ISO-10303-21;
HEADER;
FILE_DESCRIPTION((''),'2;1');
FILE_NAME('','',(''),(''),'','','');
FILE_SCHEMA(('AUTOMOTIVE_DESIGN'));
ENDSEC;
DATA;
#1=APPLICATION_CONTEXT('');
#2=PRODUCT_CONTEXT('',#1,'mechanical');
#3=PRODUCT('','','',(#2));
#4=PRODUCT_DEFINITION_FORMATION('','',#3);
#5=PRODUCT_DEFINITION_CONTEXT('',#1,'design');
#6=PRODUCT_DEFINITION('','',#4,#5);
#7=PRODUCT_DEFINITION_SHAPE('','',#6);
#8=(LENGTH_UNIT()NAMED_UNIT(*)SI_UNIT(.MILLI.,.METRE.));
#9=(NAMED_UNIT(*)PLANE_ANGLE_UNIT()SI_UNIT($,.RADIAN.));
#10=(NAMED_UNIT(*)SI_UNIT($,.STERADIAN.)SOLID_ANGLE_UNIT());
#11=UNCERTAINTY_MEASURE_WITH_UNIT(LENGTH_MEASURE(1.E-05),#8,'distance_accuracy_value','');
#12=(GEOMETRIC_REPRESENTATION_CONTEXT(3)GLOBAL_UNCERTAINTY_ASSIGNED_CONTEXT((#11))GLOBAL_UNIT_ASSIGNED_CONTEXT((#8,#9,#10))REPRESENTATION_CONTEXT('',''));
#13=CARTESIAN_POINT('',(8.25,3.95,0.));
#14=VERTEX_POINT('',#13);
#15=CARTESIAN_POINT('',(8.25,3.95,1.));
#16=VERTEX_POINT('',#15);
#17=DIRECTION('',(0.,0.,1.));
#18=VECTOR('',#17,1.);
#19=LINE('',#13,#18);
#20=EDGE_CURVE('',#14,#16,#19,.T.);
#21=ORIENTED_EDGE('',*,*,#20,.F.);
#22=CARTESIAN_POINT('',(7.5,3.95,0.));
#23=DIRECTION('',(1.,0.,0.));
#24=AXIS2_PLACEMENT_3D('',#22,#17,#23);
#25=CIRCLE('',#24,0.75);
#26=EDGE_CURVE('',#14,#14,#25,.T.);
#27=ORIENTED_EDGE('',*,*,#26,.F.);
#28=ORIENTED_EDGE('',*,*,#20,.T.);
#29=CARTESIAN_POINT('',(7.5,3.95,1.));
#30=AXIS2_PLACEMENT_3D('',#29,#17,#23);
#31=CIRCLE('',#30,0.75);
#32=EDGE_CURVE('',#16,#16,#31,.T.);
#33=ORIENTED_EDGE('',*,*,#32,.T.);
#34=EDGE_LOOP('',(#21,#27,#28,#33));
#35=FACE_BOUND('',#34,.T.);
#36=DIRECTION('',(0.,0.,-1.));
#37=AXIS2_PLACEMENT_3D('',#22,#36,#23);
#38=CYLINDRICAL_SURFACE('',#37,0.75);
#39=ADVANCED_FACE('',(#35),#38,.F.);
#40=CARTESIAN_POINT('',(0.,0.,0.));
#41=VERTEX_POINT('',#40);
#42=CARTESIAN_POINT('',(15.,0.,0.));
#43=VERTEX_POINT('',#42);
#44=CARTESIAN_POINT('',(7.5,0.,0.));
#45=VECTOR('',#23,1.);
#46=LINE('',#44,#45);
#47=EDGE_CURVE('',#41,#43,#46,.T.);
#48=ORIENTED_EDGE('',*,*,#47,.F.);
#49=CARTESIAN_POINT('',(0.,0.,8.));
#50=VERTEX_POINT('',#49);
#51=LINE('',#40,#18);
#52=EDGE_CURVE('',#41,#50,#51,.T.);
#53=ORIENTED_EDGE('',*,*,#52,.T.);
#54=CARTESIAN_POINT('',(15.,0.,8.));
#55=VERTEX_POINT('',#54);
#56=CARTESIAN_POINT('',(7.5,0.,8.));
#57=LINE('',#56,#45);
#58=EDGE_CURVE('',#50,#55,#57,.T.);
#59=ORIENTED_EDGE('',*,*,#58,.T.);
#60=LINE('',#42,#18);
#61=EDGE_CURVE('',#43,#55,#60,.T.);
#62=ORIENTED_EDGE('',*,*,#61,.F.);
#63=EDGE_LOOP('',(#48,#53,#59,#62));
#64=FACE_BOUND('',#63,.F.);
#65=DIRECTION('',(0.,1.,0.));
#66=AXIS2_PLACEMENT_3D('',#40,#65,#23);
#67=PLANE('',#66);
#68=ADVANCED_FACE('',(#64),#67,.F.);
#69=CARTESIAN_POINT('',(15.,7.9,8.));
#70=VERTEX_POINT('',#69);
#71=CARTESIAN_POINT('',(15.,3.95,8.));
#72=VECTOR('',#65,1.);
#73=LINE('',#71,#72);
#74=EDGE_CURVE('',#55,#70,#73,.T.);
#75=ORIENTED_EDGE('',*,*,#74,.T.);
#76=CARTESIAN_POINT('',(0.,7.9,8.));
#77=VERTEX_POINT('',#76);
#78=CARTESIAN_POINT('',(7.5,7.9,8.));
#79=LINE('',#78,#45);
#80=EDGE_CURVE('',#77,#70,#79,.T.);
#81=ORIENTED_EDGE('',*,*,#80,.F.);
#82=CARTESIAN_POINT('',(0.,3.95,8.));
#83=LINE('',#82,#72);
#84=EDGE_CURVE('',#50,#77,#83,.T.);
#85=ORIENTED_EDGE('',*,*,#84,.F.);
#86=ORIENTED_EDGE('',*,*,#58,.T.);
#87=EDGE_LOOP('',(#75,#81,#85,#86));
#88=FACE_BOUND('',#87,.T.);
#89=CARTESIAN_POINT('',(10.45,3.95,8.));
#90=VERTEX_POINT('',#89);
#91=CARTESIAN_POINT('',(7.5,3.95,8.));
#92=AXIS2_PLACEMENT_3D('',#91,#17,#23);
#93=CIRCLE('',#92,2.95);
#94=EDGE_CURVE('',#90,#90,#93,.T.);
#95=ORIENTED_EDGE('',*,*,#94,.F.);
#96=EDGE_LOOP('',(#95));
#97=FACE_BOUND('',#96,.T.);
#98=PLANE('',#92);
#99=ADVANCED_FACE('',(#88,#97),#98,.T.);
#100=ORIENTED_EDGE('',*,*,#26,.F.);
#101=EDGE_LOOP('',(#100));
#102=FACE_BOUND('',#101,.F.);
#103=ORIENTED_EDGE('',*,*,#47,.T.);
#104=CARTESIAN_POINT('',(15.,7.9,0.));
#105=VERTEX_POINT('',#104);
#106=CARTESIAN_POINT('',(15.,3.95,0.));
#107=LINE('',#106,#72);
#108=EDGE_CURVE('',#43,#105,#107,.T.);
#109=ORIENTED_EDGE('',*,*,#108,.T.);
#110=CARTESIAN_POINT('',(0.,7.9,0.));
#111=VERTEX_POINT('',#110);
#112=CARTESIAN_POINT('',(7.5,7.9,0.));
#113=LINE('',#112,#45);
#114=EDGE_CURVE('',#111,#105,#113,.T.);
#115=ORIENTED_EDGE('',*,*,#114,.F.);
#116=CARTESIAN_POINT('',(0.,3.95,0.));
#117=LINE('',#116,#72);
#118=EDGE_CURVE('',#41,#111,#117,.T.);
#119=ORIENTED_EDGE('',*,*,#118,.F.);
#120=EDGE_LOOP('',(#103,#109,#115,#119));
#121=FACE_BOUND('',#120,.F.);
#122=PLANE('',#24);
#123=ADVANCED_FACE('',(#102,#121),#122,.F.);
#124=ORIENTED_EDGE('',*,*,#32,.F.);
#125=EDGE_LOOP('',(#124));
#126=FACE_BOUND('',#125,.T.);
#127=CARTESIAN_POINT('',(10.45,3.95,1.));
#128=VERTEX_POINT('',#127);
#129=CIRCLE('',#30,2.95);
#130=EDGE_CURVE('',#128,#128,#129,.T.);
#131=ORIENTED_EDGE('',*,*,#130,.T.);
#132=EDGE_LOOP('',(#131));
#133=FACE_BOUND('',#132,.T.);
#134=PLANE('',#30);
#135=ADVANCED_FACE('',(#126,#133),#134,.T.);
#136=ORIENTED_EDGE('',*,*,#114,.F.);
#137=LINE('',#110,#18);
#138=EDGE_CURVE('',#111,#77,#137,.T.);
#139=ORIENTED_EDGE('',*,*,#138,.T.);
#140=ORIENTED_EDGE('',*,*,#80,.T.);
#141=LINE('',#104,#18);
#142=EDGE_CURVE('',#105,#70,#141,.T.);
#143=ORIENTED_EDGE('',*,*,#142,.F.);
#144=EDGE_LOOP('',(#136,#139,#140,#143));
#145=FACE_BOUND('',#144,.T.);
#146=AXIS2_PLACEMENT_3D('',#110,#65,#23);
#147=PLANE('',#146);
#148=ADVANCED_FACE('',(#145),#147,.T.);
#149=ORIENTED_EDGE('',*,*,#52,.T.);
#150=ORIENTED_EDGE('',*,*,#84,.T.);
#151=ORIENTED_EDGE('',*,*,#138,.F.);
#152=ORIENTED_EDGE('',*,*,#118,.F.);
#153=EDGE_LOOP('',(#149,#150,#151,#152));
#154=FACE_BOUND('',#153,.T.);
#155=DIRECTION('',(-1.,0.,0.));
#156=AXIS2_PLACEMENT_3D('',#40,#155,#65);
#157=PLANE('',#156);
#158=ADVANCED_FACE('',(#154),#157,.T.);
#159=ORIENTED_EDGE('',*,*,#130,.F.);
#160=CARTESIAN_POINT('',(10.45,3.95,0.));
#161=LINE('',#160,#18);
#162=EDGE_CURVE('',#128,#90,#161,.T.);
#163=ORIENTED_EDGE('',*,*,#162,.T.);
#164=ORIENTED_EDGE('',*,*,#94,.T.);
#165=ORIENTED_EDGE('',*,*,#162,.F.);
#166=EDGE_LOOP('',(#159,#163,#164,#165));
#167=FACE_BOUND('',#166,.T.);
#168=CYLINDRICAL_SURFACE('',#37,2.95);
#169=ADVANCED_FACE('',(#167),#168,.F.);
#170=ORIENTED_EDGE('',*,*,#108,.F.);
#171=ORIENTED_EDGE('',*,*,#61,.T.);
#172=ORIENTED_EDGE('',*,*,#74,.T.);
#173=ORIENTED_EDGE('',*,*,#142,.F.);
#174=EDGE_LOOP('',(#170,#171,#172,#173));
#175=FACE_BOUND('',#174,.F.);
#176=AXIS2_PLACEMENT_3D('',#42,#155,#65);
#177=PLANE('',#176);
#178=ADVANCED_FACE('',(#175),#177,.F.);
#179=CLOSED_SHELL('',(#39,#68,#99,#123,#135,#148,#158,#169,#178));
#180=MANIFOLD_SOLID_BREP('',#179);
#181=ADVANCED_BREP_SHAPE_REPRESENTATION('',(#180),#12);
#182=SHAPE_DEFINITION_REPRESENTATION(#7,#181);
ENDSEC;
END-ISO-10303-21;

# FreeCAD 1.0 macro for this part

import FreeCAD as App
import Part
import Sketcher


def add_polygon(sketch, points):
    """Adds a closed chain of lines whose ends are joined by coincident constraints."""
    first, n = sketch.GeometryCount, len(points)
    for a, b in zip(points, points[1:] + points[:1]):
        sketch.addGeometry(Part.LineSegment(App.Vector(*a, 0), App.Vector(*b, 0)), False)
    for i in range(n):
        sketch.addConstraint(Sketcher.Constraint("Coincident", first + i, 2, first + (i + 1) % n, 1))

doc = App.newDocument("Part")
params = doc.addObject("Spreadsheet::Sheet", "Params")
for row, (alias, value) in enumerate([
    ("sketch1_diameter", "5.9 mm"),
    ("sketch1_width", "15 mm"),
    ("sketch1_height", "7.9 mm"),
    ("pad1_length", "8 mm"),
    ("sketch2_diameter", "5.9 mm"),
    ("sketch2_diameter2", "1.5 mm"),
    ("pad2_length", "1 mm"),
], start=1):
    params.set(f"A{row}", alias)
    params.set(f"B{row}", "=" + value)
    params.setAlias(f"B{row}", alias)

body = doc.addObject("PartDesign::Body", "Body")

# Sketch on XY plane
sketch1 = doc.addObject("Sketcher::SketchObject", "Sketch")
body.addObject(sketch1)
sketch1.AttachmentSupport = (doc.XY_Plane, [""])
sketch1.MapMode = "FlatFace"
add_polygon(sketch1, [(0, 7.9), (0, 0), (15, 0), (15, 7.9)])  # lines 0-3
sketch1.addGeometry(Part.Circle(App.Vector(7.5, 4, 0), App.Vector(0, 0, 1), 3), False)  # 4
sketch1.addConstraint(Sketcher.Constraint("Vertical", 0))
sketch1.addConstraint(Sketcher.Constraint("Horizontal", 1))
sketch1.addConstraint(Sketcher.Constraint("Vertical", 2))
sketch1.addConstraint(Sketcher.Constraint("Horizontal", 3))
sketch1.addConstraint(Sketcher.Constraint("Coincident", 0, 2, -1, 1))
sketch1.addConstraint(Sketcher.Constraint("Diameter", 4, 5.9))
sketch1.addConstraint(Sketcher.Constraint("DistanceX", 1, 1, 1, 2, 15.0))
sketch1.addConstraint(Sketcher.Constraint("DistanceY", 0, 2, 0, 1, 7.9))
sketch1.addConstraint(Sketcher.Constraint("DistanceX", -1, 1, 4, 3, 7.5))
sketch1.addConstraint(Sketcher.Constraint("DistanceY", -1, 1, 4, 3, 3.95))
sketch1.setExpression("Constraints[9]", "Params.sketch1_diameter")
sketch1.setExpression("Constraints[10]", "Params.sketch1_width")
sketch1.setExpression("Constraints[11]", "Params.sketch1_height")
pad1 = doc.addObject("PartDesign::Pad", "Pad")
body.addObject(pad1)
pad1.Profile = sketch1
pad1.setExpression("Length", "Params.pad1_length")

# Sketch on XY plane
sketch2 = doc.addObject("Sketcher::SketchObject", "Sketch001")
body.addObject(sketch2)
sketch2.AttachmentSupport = (doc.XY_Plane, [""])
sketch2.MapMode = "FlatFace"
sketch2.addGeometry(Part.Circle(App.Vector(7.5, 4, 0), App.Vector(0, 0, 1), 3), False)
sketch2.addGeometry(Part.Circle(App.Vector(7.5, 4, 0), App.Vector(0, 0, 1), 0.8), False)
sketch2.addConstraint(Sketcher.Constraint("Coincident", 1, 3, 0, 3))
sketch2.addConstraint(Sketcher.Constraint("Diameter", 0, 5.9))
sketch2.addConstraint(Sketcher.Constraint("Diameter", 1, 1.5))
sketch2.addConstraint(Sketcher.Constraint("DistanceX", -1, 1, 0, 3, 7.5))
sketch2.addConstraint(Sketcher.Constraint("DistanceY", -1, 1, 0, 3, 3.95))
sketch2.setExpression("Constraints[1]", "Params.sketch2_diameter")
sketch2.setExpression("Constraints[2]", "Params.sketch2_diameter2")
pad2 = doc.addObject("PartDesign::Pad", "Pad001")
body.addObject(pad2)
pad2.Profile = sketch2
pad2.setExpression("Length", "Params.pad2_length")

doc.recompute()
